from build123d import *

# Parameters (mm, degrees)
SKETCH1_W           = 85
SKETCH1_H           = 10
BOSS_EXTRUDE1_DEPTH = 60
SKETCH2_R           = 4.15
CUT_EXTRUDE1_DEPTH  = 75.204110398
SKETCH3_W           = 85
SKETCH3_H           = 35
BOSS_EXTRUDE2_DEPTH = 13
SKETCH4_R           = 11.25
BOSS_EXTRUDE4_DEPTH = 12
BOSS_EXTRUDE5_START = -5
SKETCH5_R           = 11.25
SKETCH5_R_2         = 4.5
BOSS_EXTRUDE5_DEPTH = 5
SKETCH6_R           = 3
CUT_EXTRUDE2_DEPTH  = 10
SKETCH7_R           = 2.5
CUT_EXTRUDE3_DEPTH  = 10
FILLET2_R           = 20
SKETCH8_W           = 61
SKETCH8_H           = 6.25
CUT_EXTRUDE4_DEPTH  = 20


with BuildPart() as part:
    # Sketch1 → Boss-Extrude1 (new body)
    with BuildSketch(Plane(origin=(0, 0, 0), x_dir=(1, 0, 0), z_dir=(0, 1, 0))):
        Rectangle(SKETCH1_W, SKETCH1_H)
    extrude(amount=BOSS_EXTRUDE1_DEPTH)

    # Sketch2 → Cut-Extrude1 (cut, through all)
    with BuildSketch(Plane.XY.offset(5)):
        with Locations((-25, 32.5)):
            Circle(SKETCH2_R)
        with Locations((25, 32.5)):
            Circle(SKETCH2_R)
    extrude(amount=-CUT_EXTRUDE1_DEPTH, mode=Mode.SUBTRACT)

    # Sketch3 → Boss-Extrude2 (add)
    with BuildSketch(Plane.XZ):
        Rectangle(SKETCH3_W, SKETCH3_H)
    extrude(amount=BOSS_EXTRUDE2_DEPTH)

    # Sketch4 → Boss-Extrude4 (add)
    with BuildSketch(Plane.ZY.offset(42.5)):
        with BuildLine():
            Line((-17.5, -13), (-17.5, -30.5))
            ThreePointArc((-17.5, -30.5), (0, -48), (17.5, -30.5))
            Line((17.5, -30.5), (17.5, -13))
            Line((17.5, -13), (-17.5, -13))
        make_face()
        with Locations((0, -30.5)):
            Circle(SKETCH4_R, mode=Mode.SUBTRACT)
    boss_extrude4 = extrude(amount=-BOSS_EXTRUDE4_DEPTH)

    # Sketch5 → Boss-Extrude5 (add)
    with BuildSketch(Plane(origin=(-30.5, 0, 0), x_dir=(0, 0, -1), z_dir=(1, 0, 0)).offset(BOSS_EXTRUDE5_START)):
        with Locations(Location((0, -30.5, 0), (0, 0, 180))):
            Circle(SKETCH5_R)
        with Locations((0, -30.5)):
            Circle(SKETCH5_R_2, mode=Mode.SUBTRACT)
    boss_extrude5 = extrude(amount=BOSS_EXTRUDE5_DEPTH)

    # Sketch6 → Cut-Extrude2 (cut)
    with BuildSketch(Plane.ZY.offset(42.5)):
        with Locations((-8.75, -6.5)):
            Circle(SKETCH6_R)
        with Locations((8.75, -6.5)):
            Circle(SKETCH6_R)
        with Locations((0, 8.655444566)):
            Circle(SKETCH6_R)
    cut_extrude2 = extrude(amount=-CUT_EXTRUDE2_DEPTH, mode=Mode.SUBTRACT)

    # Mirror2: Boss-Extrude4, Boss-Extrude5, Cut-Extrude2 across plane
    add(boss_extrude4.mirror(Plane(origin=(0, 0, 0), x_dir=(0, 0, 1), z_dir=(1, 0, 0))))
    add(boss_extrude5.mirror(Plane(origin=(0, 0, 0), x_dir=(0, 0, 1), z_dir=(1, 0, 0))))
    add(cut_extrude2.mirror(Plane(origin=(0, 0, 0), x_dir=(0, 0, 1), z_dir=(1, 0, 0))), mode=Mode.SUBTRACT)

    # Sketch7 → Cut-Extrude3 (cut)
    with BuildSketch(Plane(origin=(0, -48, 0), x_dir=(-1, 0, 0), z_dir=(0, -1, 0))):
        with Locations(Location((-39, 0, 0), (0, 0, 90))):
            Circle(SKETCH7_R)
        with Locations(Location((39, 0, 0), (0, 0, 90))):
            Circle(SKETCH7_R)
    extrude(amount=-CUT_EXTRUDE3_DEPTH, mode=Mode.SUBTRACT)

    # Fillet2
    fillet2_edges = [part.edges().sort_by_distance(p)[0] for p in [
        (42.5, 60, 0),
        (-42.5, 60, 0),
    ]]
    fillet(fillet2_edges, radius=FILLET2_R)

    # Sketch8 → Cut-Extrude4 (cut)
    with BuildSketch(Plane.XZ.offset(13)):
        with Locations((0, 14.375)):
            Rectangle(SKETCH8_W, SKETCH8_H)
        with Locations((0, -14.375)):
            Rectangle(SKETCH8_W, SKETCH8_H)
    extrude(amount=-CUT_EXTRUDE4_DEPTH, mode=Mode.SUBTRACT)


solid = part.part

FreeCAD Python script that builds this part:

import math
import FreeCAD as App
import Part
import Sketcher
from FreeCAD import Vector


def edges_at(feature, points):
    """Names of the edges that pass closest to the given points."""
    edges = feature.Shape.Edges
    near = lambda p: min(range(len(edges)), key=lambda i: edges[i].distToShape(Part.Vertex(*p))[0])
    return sorted({f"Edge{near(p) + 1}" for p in points})

doc = App.newDocument("Part")
body = doc.addObject("PartDesign::Body", "Body")

# Sketch on XZ plane
sketch1 = doc.addObject("Sketcher::SketchObject", "Sketch")
body.addObject(sketch1)
sketch1.AttachmentSupport = (doc.XZ_Plane, [""])
sketch1.MapMode = "FlatFace"
sketch1.addGeometry([
    Part.LineSegment(Vector(-42, -5, 0), Vector(-42, 5, 0)),
    Part.LineSegment(Vector(-42, 5, 0), Vector(42, 5, 0)),
    Part.LineSegment(Vector(42, 5, 0), Vector(42, -5, 0)),
    Part.LineSegment(Vector(42, -5, 0), Vector(-42, -5, 0)),
], False)
sketch1.addConstraint([
    Sketcher.Constraint("Coincident", 0, 2, 1, 1),
    Sketcher.Constraint("Coincident", 1, 2, 2, 1),
    Sketcher.Constraint("Coincident", 2, 2, 3, 1),
    Sketcher.Constraint("Coincident", 3, 2, 0, 1),
    Sketcher.Constraint("Vertical", 0),
    Sketcher.Constraint("Horizontal", 1),
    Sketcher.Constraint("Vertical", 2),
    Sketcher.Constraint("Horizontal", 3),
    Sketcher.Constraint("Symmetric", 0, 2, 2, 2, -1, 1),
    Sketcher.Constraint("DistanceX", 1, 1, 1, 2, 85.0),
    Sketcher.Constraint("DistanceY", 0, 1, 0, 2, 10.0),
])
pad1 = doc.addObject("PartDesign::Pad", "Pad")
body.addObject(pad1)
pad1.Profile = sketch1
pad1.Length = 60
pad1.Reversed = True

# Sketch on XY plane
sketch2 = doc.addObject("Sketcher::SketchObject", "Sketch001")
body.addObject(sketch2)
sketch2.AttachmentSupport = (doc.XY_Plane, [""])
sketch2.MapMode = "FlatFace"
sketch2.AttachmentOffset = App.Placement(Vector(0, 0, 5), App.Rotation())
sketch2.addGeometry([
    Part.Circle(Vector(-25, 32.5, 0), Vector(0, 0, 1), 4.2),
    Part.Circle(Vector(25, 32.5, 0), Vector(0, 0, 1), 4.2),
], False)
sketch2.addConstraint([
    Sketcher.Constraint("Equal", 0, 1),
    Sketcher.Constraint("Symmetric", 0, 3, 1, 3, -2),
    Sketcher.Constraint("Diameter", 0, 8.3),
    Sketcher.Constraint("DistanceX", 0, 3, -1, 1, 25.0),
    Sketcher.Constraint("DistanceY", -1, 1, 0, 3, 32.5),
])
pocket1 = doc.addObject("PartDesign::Pocket", "Pocket")
body.addObject(pocket1)
pocket1.Profile = sketch2
pocket1.Type = "ThroughAll"

# Sketch on XZ plane
sketch3 = doc.addObject("Sketcher::SketchObject", "Sketch002")
body.addObject(sketch3)
sketch3.AttachmentSupport = (doc.XZ_Plane, [""])
sketch3.MapMode = "FlatFace"
sketch3.addGeometry([
    Part.LineSegment(Vector(-42, 18, 0), Vector(-42, -18, 0)),
    Part.LineSegment(Vector(-42, -18, 0), Vector(42, -18, 0)),
    Part.LineSegment(Vector(42, -18, 0), Vector(42, 18, 0)),
    Part.LineSegment(Vector(42, 18, 0), Vector(-42, 18, 0)),
], False)
sketch3.addConstraint([
    Sketcher.Constraint("Coincident", 0, 2, 1, 1),
    Sketcher.Constraint("Coincident", 1, 2, 2, 1),
    Sketcher.Constraint("Coincident", 2, 2, 3, 1),
    Sketcher.Constraint("Coincident", 3, 2, 0, 1),
    Sketcher.Constraint("Vertical", 0),
    Sketcher.Constraint("Horizontal", 1),
    Sketcher.Constraint("Vertical", 2),
    Sketcher.Constraint("Horizontal", 3),
    Sketcher.Constraint("Symmetric", 0, 2, 2, 2, -1, 1),
    Sketcher.Constraint("DistanceX", 1, 1, 1, 2, 85.0),
    Sketcher.Constraint("DistanceY", 0, 2, 0, 1, 35.0),
])
pad2 = doc.addObject("PartDesign::Pad", "Pad001")
body.addObject(pad2)
pad2.Profile = sketch3
pad2.Length = 13

# Sketch on YZ plane
sketch4 = doc.addObject("Sketcher::SketchObject", "Sketch003")
body.addObject(sketch4)
sketch4.AttachmentSupport = (doc.YZ_Plane, [""])
sketch4.MapMode = "FlatFace"
sketch4.AttachmentOffset = App.Placement(Vector(0, 0, -42.5), App.Rotation())
sketch4.addGeometry([
    Part.LineSegment(Vector(-13, -18, 0), Vector(-30, -18, 0)),  # 0
    Part.ArcOfCircle(Part.Circle(Vector(-30, 0, 0), Vector(0, 0, 1), 18), math.radians(90), math.radians(270)),  # 1
    Part.LineSegment(Vector(-30, 18, 0), Vector(-13, 18, 0)),  # 2
    Part.LineSegment(Vector(-13, 18, 0), Vector(-13, -18, 0)),  # 3
    Part.Circle(Vector(-30, 0, 0), Vector(0, 0, 1), 11),  # 4
], False)
sketch4.addConstraint([
    Sketcher.Constraint("Tangent", 0, 2, 1, 2),
    Sketcher.Constraint("Tangent", 1, 1, 2, 1),
    Sketcher.Constraint("Coincident", 2, 2, 3, 1),
    Sketcher.Constraint("Coincident", 3, 2, 0, 1),
    Sketcher.Constraint("Horizontal", 0),
    Sketcher.Constraint("Horizontal", 2),
    Sketcher.Constraint("Vertical", 3),
    Sketcher.Constraint("Coincident", 4, 3, 1, 3),
    Sketcher.Constraint("PointOnObject", 1, 3, -1),
    Sketcher.Constraint("Diameter", 4, 22.5),
    Sketcher.Constraint("Radius", 1, 17.5),
    Sketcher.Constraint("DistanceX", 0, 2, 0, 1, 17.5),
    Sketcher.Constraint("DistanceX", 2, 2, -1, 1, 13.0),
])
pad3 = doc.addObject("PartDesign::Pad", "Pad002")
body.addObject(pad3)
pad3.Profile = sketch4
pad3.Length = 12

# Sketch on YZ plane
sketch5 = doc.addObject("Sketcher::SketchObject", "Sketch004")
body.addObject(sketch5)
sketch5.AttachmentSupport = (doc.YZ_Plane, [""])
sketch5.MapMode = "FlatFace"
sketch5.AttachmentOffset = App.Placement(Vector(0, 0, -35.5), App.Rotation())
sketch5.addGeometry([
    Part.Circle(Vector(-30.5, 0, 0), Vector(0, 0, 1), 11.2),
    Part.Circle(Vector(-30.5, 0, 0), Vector(0, 0, 1), 4.5),
], False)
sketch5.addConstraint([
    Sketcher.Constraint("Coincident", 1, 3, 0, 3),
    Sketcher.Constraint("PointOnObject", 0, 3, -1),
    Sketcher.Constraint("Diameter", 1, 9.0),
    Sketcher.Constraint("Diameter", 0, 22.5),
    Sketcher.Constraint("DistanceX", 0, 3, -1, 1, 30.5),
])
pad4 = doc.addObject("PartDesign::Pad", "Pad003")
body.addObject(pad4)
pad4.Profile = sketch5
pad4.Length = 5

# Sketch on YZ plane
sketch6 = doc.addObject("Sketcher::SketchObject", "Sketch005")
body.addObject(sketch6)
sketch6.AttachmentSupport = (doc.YZ_Plane, [""])
sketch6.MapMode = "FlatFace"
sketch6.AttachmentOffset = App.Placement(Vector(0, 0, -42.5), App.Rotation())
sketch6.addGeometry([
    Part.Circle(Vector(-6.5, -8.8, 0), Vector(0, 0, 1), 3),
    Part.Circle(Vector(-6.5, 8.8, 0), Vector(0, 0, 1), 3),
    Part.Circle(Vector(8.7, 0, 0), Vector(0, 0, 1), 3),
], False)
sketch6.addConstraint([
    Sketcher.Constraint("Equal", 0, 1),
    Sketcher.Constraint("Equal", 1, 2),
    Sketcher.Constraint("Symmetric", 0, 3, 1, 3, -1),
    Sketcher.Constraint("PointOnObject", 2, 3, -1),
    Sketcher.Constraint("Diameter", 0, 6.0),
    Sketcher.Constraint("DistanceX", 0, 3, -1, 1, 6.5),
    Sketcher.Constraint("DistanceY", 0, 3, 1, 3, 17.5),
    Sketcher.Constraint("DistanceX", -1, 1, 2, 3, 8.655445),
])
pocket2 = doc.addObject("PartDesign::Pocket", "Pocket001")
body.addObject(pocket2)
pocket2.Profile = sketch6
pocket2.Length = 10
pocket2.Reversed = True
doc.recompute()

mirrored = doc.addObject("PartDesign::Mirrored", "Mirrored")
body.addObject(mirrored)
mirrored.Originals = [pad3, pad4, pocket2]
mirrored.MirrorPlane = (doc.YZ_Plane, [""])
body.Tip = mirrored

# Sketch on XZ plane
sketch7 = doc.addObject("Sketcher::SketchObject", "Sketch006")
body.addObject(sketch7)
sketch7.AttachmentSupport = (doc.XZ_Plane, [""])
sketch7.MapMode = "FlatFace"
sketch7.AttachmentOffset = App.Placement(Vector(0, 0, 48), App.Rotation())
sketch7.addGeometry([
    Part.Circle(Vector(39, 0, 0), Vector(0, 0, 1), 2.5),
    Part.Circle(Vector(-39, 0, 0), Vector(0, 0, 1), 2.5),
], False)
sketch7.addConstraint([
    Sketcher.Constraint("Equal", 0, 1),
    Sketcher.Constraint("Symmetric", 0, 3, 1, 3, -1, 1),
    Sketcher.Constraint("PointOnObject", 0, 3, -1),
    Sketcher.Constraint("Diameter", 0, 5.0),
    Sketcher.Constraint("DistanceX", -1, 1, 0, 3, 39.0),
])
pocket3 = doc.addObject("PartDesign::Pocket", "Pocket002")
body.addObject(pocket3)
pocket3.Profile = sketch7
pocket3.Length = 10
doc.recompute()

fillet = doc.addObject("PartDesign::Fillet", "Fillet")
body.addObject(fillet)
fillet.Base = (pocket3, edges_at(pocket3, [(42.5, 60, 0), (-42.5, 60, 0)]))
fillet.Radius = 20

# Sketch on XZ plane
sketch8 = doc.addObject("Sketcher::SketchObject", "Sketch007")
body.addObject(sketch8)
sketch8.AttachmentSupport = (doc.XZ_Plane, [""])
sketch8.MapMode = "FlatFace"
sketch8.AttachmentOffset = App.Placement(Vector(0, 0, 13), App.Rotation())
sketch8.addGeometry([
    Part.LineSegment(Vector(-30, 18, 0), Vector(-30, 11, 0)),  # 0
    Part.LineSegment(Vector(-30, 11, 0), Vector(30, 11, 0)),  # 1
    Part.LineSegment(Vector(30, 11, 0), Vector(30, 18, 0)),  # 2
    Part.LineSegment(Vector(30, 18, 0), Vector(-30, 18, 0)),  # 3
    Part.LineSegment(Vector(-30, -11, 0), Vector(-30, -18, 0)),  # 4
    Part.LineSegment(Vector(-30, -18, 0), Vector(30, -18, 0)),  # 5
    Part.LineSegment(Vector(30, -18, 0), Vector(30, -11, 0)),  # 6
    Part.LineSegment(Vector(30, -11, 0), Vector(-30, -11, 0)),  # 7
], False)
sketch8.addConstraint([
    Sketcher.Constraint("Coincident", 0, 2, 1, 1),
    Sketcher.Constraint("Coincident", 1, 2, 2, 1),
    Sketcher.Constraint("Coincident", 2, 2, 3, 1),
    Sketcher.Constraint("Coincident", 3, 2, 0, 1),
    Sketcher.Constraint("Coincident", 4, 2, 5, 1),
    Sketcher.Constraint("Coincident", 5, 2, 6, 1),
    Sketcher.Constraint("Coincident", 6, 2, 7, 1),
    Sketcher.Constraint("Coincident", 7, 2, 4, 1),
    Sketcher.Constraint("Vertical", 0),
    Sketcher.Constraint("Horizontal", 1),
    Sketcher.Constraint("Vertical", 2),
    Sketcher.Constraint("Horizontal", 3),
    Sketcher.Constraint("Vertical", 4),
    Sketcher.Constraint("Horizontal", 5),
    Sketcher.Constraint("Vertical", 6),
    Sketcher.Constraint("Horizontal", 7),
    Sketcher.Constraint("Symmetric", 2, 2, 4, 2, -1, 1),
    Sketcher.Constraint("Symmetric", 0, 2, 6, 2, -1, 1),
    Sketcher.Constraint("Vertical", 3, 2, 4, 2),
    Sketcher.Constraint("DistanceX", 1, 1, 1, 2, 61.0),
    Sketcher.Constraint("DistanceY", 4, 2, 3, 2, 35.0),
    Sketcher.Constraint("DistanceY", 0, 2, 0, 1, 6.25),
])
pocket4 = doc.addObject("PartDesign::Pocket", "Pocket003")
body.addObject(pocket4)
pocket4.Profile = sketch8
pocket4.Length = 20

doc.recompute()
